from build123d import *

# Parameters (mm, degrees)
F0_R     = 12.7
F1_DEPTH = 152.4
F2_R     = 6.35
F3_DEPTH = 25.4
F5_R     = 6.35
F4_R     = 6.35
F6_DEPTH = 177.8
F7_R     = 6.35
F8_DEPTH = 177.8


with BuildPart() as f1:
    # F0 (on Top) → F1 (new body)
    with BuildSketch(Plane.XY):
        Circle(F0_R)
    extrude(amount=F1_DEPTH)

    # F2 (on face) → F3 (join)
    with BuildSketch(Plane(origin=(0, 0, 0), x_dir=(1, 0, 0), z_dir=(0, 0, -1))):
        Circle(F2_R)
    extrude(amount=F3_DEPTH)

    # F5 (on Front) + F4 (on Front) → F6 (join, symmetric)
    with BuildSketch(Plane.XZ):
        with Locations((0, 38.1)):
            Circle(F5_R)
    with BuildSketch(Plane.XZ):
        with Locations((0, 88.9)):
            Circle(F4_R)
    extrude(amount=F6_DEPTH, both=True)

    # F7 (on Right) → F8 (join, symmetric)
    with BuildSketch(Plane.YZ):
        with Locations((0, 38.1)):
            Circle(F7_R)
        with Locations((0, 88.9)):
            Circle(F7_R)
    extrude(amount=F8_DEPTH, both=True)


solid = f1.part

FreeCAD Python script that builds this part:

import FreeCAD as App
import Part
import Sketcher

V = App.Vector
Q = App.Units.Quantity

doc = App.newDocument("Part")
params = doc.addObject("Spreadsheet::Sheet", "Params")
for row, (alias, value) in enumerate([
    ("sketch1_diameter", "1 in"),
    ("pad1_length", "6 in"),
    ("sketch2_diameter", "0.5 in"),
    ("pad2_length", "1 in"),
    ("sketch3_diameter", "0.5 in"),
    ("pad3_length", "14 in"),
    ("sketch4_diameter", "0.5 in"),
    ("pad4_length", "14 in"),
], start=1):
    params.set(f"A{row}", alias)
    params.set(f"B{row}", "=" + value)
    params.setAlias(f"B{row}", alias)

body = doc.addObject("PartDesign::Body", "Body")

# Sketch on XY plane
sketch1 = body.newObject("Sketcher::SketchObject", "Sketch")
sketch1.AttachmentSupport = (doc.getObject("XY_Plane"), [""])
sketch1.MapMode = "FlatFace"
sketch1.addGeometry(Part.Circle(V(0, 0, 0), V(0, 0, 1), 12.7), False)
sketch1.addConstraint([
    Sketcher.Constraint("Coincident", 0, 3, -1, 1),
    Sketcher.Constraint("Diameter", 0, Q("1 in")),
])
sketch1.setExpression("Constraints[1]", "Params.sketch1_diameter")
pad1 = body.newObject("PartDesign::Pad", "Pad")
pad1.Profile = sketch1
pad1.setExpression("Length", "Params.pad1_length")

# Sketch on XY plane
sketch2 = body.newObject("Sketcher::SketchObject", "Sketch001")
sketch2.AttachmentSupport = (doc.getObject("XY_Plane"), [""])
sketch2.MapMode = "FlatFace"
sketch2.addGeometry(Part.Circle(V(0, 0, 0), V(0, 0, 1), 6.35), False)
sketch2.addConstraint([
    Sketcher.Constraint("Coincident", 0, 3, -1, 1),
    Sketcher.Constraint("Diameter", 0, Q("0.5 in")),
])
sketch2.setExpression("Constraints[1]", "Params.sketch2_diameter")
pad2 = body.newObject("PartDesign::Pad", "Pad001")
pad2.Profile = sketch2
pad2.setExpression("Length", "Params.pad2_length")
pad2.Reversed = True

# Sketch on XZ plane
sketch3 = body.newObject("Sketcher::SketchObject", "Sketch002")
sketch3.AttachmentSupport = (doc.getObject("XZ_Plane"), [""])
sketch3.MapMode = "FlatFace"
sketch3.addGeometry([
    Part.Circle(V(0, 38.1, 0), V(0, 0, 1), 6.35),
    Part.Circle(V(0, 88.9, 0), V(0, 0, 1), 6.35),
], False)
sketch3.addConstraint([
    Sketcher.Constraint("Equal", 0, 1),
    Sketcher.Constraint("PointOnObject", 0, 3, -2),
    Sketcher.Constraint("PointOnObject", 1, 3, -2),
    Sketcher.Constraint("Diameter", 0, Q("0.5 in")),
    Sketcher.Constraint("DistanceY", 0, 3, 1, 3, Q("2 in")),
    Sketcher.Constraint("DistanceY", -1, 1, 0, 3, Q("1.5 in")),
])
sketch3.setExpression("Constraints[3]", "Params.sketch3_diameter")
pad3 = body.newObject("PartDesign::Pad", "Pad002")
pad3.Profile = sketch3
pad3.setExpression("Length", "Params.pad3_length")
pad3.Midplane = True

# Sketch on YZ plane
sketch4 = body.newObject("Sketcher::SketchObject", "Sketch003")
sketch4.AttachmentSupport = (doc.getObject("YZ_Plane"), [""])
sketch4.MapMode = "FlatFace"
sketch4.addGeometry([
    Part.Circle(V(0, 38.1, 0), V(0, 0, 1), 6.35),
    Part.Circle(V(0, 88.9, 0), V(0, 0, 1), 6.35),
], False)
sketch4.addConstraint([
    Sketcher.Constraint("Equal", 0, 1),
    Sketcher.Constraint("PointOnObject", 0, 3, -2),
    Sketcher.Constraint("PointOnObject", 1, 3, -2),
    Sketcher.Constraint("Diameter", 0, Q("0.5 in")),
    Sketcher.Constraint("DistanceY", 0, 3, 1, 3, Q("2 in")),
    Sketcher.Constraint("DistanceY", -1, 1, 0, 3, Q("1.5 in")),
])
sketch4.setExpression("Constraints[3]", "Params.sketch4_diameter")
pad4 = body.newObject("PartDesign::Pad", "Pad003")
pad4.Profile = sketch4
pad4.setExpression("Length", "Params.pad4_length")
pad4.Midplane = True

doc.recompute()
